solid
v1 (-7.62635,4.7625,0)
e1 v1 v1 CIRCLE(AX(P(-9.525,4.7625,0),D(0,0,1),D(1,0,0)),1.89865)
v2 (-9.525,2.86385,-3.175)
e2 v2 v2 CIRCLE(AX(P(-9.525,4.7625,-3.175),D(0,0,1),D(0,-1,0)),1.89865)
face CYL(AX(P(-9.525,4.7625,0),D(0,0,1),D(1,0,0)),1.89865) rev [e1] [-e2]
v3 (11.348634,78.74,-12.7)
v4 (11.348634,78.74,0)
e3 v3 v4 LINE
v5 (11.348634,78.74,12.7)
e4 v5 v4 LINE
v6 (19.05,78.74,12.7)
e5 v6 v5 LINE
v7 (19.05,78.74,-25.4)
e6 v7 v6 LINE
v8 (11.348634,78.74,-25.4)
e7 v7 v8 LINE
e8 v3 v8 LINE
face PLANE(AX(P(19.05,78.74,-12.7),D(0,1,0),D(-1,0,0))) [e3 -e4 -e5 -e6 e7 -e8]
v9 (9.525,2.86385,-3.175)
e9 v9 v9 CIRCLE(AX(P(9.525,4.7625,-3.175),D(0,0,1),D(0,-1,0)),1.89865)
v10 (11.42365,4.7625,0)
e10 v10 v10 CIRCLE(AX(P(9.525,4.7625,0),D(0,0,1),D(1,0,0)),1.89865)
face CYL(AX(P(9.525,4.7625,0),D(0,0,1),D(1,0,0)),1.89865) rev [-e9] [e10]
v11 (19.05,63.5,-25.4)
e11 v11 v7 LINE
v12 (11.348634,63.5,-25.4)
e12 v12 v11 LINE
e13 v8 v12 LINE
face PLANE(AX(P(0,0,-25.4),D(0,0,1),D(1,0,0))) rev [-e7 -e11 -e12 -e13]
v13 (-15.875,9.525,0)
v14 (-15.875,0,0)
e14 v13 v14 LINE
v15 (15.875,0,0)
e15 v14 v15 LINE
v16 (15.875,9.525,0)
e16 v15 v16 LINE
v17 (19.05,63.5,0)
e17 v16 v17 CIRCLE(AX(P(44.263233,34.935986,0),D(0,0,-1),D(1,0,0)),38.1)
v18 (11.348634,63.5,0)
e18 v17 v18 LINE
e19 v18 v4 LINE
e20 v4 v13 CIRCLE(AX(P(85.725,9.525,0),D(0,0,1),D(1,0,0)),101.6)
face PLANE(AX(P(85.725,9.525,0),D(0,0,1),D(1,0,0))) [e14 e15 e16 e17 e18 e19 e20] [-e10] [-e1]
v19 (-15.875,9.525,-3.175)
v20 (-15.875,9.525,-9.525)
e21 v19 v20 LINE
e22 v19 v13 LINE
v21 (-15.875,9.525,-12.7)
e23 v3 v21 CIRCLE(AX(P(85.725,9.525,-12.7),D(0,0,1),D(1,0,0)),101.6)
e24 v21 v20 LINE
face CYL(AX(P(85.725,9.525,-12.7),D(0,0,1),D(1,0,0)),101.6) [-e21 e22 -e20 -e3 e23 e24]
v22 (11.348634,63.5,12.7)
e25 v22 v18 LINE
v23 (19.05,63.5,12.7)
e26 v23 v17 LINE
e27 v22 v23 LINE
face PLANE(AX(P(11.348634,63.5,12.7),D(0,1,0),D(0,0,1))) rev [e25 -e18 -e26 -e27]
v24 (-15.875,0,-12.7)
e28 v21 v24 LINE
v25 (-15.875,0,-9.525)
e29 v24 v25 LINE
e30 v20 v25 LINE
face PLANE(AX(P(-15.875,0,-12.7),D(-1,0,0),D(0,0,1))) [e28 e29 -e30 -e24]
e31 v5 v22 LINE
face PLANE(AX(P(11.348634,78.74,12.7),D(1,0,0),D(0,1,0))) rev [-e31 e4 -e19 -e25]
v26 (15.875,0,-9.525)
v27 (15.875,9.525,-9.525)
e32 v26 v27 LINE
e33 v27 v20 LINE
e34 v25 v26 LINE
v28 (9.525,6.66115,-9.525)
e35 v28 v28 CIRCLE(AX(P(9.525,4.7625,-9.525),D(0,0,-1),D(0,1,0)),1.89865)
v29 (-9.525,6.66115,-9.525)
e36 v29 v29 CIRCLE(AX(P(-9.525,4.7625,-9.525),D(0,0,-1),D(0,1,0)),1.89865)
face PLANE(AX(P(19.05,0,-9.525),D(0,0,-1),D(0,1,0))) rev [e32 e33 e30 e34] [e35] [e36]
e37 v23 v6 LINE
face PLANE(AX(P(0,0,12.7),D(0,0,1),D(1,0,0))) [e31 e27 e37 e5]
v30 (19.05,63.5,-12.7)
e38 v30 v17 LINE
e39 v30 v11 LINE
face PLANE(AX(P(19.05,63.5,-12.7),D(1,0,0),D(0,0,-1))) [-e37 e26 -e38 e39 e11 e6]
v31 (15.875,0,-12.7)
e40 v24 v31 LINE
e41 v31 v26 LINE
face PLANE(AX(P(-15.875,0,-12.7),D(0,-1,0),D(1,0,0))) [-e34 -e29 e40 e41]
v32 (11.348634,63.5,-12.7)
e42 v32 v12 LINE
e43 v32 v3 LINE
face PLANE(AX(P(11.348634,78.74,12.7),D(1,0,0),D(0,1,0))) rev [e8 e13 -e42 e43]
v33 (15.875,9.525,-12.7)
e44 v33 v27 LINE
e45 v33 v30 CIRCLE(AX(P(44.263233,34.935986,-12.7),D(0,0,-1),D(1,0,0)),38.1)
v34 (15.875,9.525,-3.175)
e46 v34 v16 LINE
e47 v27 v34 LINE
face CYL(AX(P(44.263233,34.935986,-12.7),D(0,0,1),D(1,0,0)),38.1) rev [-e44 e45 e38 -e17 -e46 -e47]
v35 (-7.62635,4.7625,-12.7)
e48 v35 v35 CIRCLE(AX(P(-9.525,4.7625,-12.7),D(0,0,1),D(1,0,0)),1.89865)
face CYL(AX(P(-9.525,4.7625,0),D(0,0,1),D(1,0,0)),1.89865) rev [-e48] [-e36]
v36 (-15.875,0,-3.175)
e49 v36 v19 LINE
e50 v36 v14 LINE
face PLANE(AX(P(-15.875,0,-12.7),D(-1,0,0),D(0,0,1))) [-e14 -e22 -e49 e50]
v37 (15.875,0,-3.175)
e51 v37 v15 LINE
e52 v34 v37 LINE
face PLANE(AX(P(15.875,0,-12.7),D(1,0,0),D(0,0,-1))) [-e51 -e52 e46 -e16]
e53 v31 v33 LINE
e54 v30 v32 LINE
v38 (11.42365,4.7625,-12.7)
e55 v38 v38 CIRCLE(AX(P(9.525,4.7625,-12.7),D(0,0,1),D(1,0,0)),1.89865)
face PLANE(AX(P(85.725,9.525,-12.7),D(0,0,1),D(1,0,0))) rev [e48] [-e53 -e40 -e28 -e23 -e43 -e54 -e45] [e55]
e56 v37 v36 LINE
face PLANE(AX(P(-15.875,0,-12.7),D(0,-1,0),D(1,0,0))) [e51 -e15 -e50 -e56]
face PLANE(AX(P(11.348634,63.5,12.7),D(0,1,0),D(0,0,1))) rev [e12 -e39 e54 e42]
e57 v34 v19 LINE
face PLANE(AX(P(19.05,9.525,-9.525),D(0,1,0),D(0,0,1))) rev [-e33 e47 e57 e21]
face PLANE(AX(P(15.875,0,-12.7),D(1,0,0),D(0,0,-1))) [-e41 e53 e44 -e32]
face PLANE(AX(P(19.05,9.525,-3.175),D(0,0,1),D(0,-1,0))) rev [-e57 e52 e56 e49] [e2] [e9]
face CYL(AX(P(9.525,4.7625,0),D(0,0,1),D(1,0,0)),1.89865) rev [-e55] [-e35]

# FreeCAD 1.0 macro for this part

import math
import FreeCAD as App
import Part
import Sketcher
Q = App.Units.Quantity


def add_polygon(sketch, points):
    """Adds a closed chain of lines whose ends are joined by coincident constraints."""
    first, n = sketch.GeometryCount, len(points)
    for a, b in zip(points, points[1:] + points[:1]):
        sketch.addGeometry(Part.LineSegment(App.Vector(*a, 0), App.Vector(*b, 0)), False)
    for i in range(n):
        sketch.addConstraint(Sketcher.Constraint("Coincident", first + i, 2, first + (i + 1) % n, 1))

doc = App.newDocument("Part")
params = doc.addObject("Spreadsheet::Sheet", "Params")
for row, (alias, value) in enumerate([
    ("sketch1_radius", "4 in"),
    ("sketch1_radius2", "1.5 in"),
    ("sketch1_height", "0.6 in"),
    ("sketch1_width", "1.25 in"),
    ("sketch1_height2", "0.375 in"),
    ("pad1_length", "0.5 in"),
    ("sketch2_height", "0.25 in"),
    ("sketch2_width", "0.375 in"),
    ("hole_diameter", "0.1495 in"),
    ("sketch4_height", "0.6 in"),
    ("pad2_length", "1.5 in"),
], start=1):
    params.set(f"A{row}", alias)
    params.set(f"B{row}", "=" + value)
    params.setAlias(f"B{row}", alias)

body = doc.addObject("PartDesign::Body", "Body")

sketch1 = body.newObject("Sketcher::SketchObject", "Sketch")
sketch1.AttachmentSupport = (doc.getObject("XY_Plane"), [""])
sketch1.MapMode = "FlatFace"
sketch1.addGeometry([
    Part.LineSegment(App.Vector(-16, 0, 0), App.Vector(16, 0, 0)),
    Part.LineSegment(App.Vector(16, 0, 0), App.Vector(16, 10, 0)),
    Part.ArcOfCircle(Part.Circle(App.Vector(44, 35, 0), App.Vector(0, 0, 1), 38), math.radians(131), math.radians(222)),
    Part.LineSegment(App.Vector(19, 64, 0), App.Vector(19, 79, 0)),
    Part.LineSegment(App.Vector(19, 79, 0), App.Vector(11, 79, 0)),
    Part.ArcOfCircle(Part.Circle(App.Vector(86, 10, 0), App.Vector(0, 0, 1), 102), math.radians(137), math.radians(180)),
    Part.LineSegment(App.Vector(-16, 10, 0), App.Vector(-16, 0, 0)),
], False)
sketch1.addConstraint([
    Sketcher.Constraint("Coincident", 0, 2, 1, 1),
    Sketcher.Constraint("Coincident", 1, 2, 2, 2),
    Sketcher.Constraint("Coincident", 2, 1, 3, 1),
    Sketcher.Constraint("Coincident", 3, 2, 4, 1),
    Sketcher.Constraint("Coincident", 4, 2, 5, 1),
    Sketcher.Constraint("Tangent", 5, 2, 6, 1),
    Sketcher.Constraint("Coincident", 6, 2, 0, 1),
    Sketcher.Constraint("Horizontal", 0),
    Sketcher.Constraint("Vertical", 1),
    Sketcher.Constraint("Vertical", 3),
    Sketcher.Constraint("Horizontal", 4),
    Sketcher.Constraint("Vertical", 6),
    Sketcher.Constraint("Symmetric", 0, 2, 6, 2, -1, 1),
    Sketcher.Constraint("Horizontal", 5, 3, 1, 2),
    Sketcher.Constraint("Radius", 5, Q("4 in")),
    Sketcher.Constraint("Radius", 2, Q("1.5 in")),
    Sketcher.Constraint("DistanceY", 3, 1, 3, 2, Q("0.6 in")),
    Sketcher.Constraint("DistanceX", 0, 1, 0, 2, Q("1.25 in")),
    Sketcher.Constraint("DistanceY", -1, 1, 2, 1, Q("2.5 in")),
    Sketcher.Constraint("DistanceY", 1, 1, 1, 2, Q("0.375 in")),
    Sketcher.Constraint("DistanceX", -1, 1, 2, 1, Q("0.75 in")),
])
sketch1.setExpression("Constraints[14]", "Params.sketch1_radius")
sketch1.setExpression("Constraints[15]", "Params.sketch1_radius2")
sketch1.setExpression("Constraints[16]", "Params.sketch1_height")
sketch1.setExpression("Constraints[17]", "Params.sketch1_width")
sketch1.setExpression("Constraints[19]", "Params.sketch1_height2")
pad1 = body.newObject("PartDesign::Pad", "Pad")
pad1.Profile = sketch1
pad1.setExpression("Length", "Params.pad1_length")
pad1.Reversed = True

sketch2 = body.newObject("Sketcher::SketchObject", "Sketch001")
sketch2.AttachmentSupport = (doc.getObject("YZ_Plane"), [""])
sketch2.MapMode = "FlatFace"
sketch2.AttachmentOffset = App.Placement(App.Vector(0, 0, -0.625 * 25.4), App.Rotation())
add_polygon(sketch2, [(10, -10), (0, -10), (0, -3), (10, -3)])
sketch2.addConstraint([
    Sketcher.Constraint("Horizontal", 0),
    Sketcher.Constraint("Vertical", 1),
    Sketcher.Constraint("Horizontal", 2),
    Sketcher.Constraint("Vertical", 3),
    Sketcher.Constraint("PointOnObject", 0, 2, -2),
    Sketcher.Constraint("DistanceY", 1, 1, 1, 2, Q("0.25 in")),
    Sketcher.Constraint("DistanceX", 0, 2, 0, 1, Q("0.375 in")),
    Sketcher.Constraint("DistanceY", 0, 2, -1, 1, Q("0.375 in")),
])
sketch2.setExpression("Constraints[9]", "Params.sketch2_height")
sketch2.setExpression("Constraints[10]", "Params.sketch2_width")
pocket1 = body.newObject("PartDesign::Pocket", "Pocket")
pocket1.Profile = sketch2
pocket1.Type = "ThroughAll"
pocket1.Reversed = True

sketch3 = body.newObject("Sketcher::SketchObject", "Sketch002")
sketch3.AttachmentSupport = (doc.getObject("XY_Plane"), [""])
sketch3.MapMode = "FlatFace"
sketch3.addGeometry([
    Part.Circle(App.Vector(9.5, 4.8, 0), App.Vector(0, 0, 1), 1.9),
    Part.Circle(App.Vector(-9.5, 4.8, 0), App.Vector(0, 0, 1), 1.9),
], False)
sketch3.addConstraint([
    Sketcher.Constraint("Equal", 0, 1),
    Sketcher.Constraint("Symmetric", 0, 3, 1, 3, -2),
    Sketcher.Constraint("Diameter", 0, Q("0.1495 in")),
    Sketcher.Constraint("DistanceX", 1, 3, 0, 3, Q("0.75 in")),
    Sketcher.Constraint("DistanceY", -1, 1, 0, 3, Q("0.1875 in")),
])
doc.recompute()
hole = body.newObject("PartDesign::Hole", "Hole")
hole.Profile = sketch3
hole.ThreadType = "None"
hole.setExpression("Diameter", "Params.hole_diameter")
hole.DepthType = "ThroughAll"

sketch4 = body.newObject("Sketcher::SketchObject", "Sketch003")
sketch4.AttachmentSupport = (doc.getObject("XY_Plane"), [""])
sketch4.MapMode = "FlatFace"
sketch4.AttachmentOffset = App.Placement(App.Vector(0, 0, -0.25 * 25.4), App.Rotation())
add_polygon(sketch4, [(11, 79), (11, 64), (19, 64), (19, 79)])
sketch4.addConstraint([
    Sketcher.Constraint("Vertical", 0),
    Sketcher.Constraint("Horizontal", 1),
    Sketcher.Constraint("Vertical", 2),
    Sketcher.Constraint("Horizontal", 3),
    Sketcher.Constraint("DistanceY", 0, 2, 0, 1, Q("0.6 in")),
    Sketcher.Constraint("DistanceY", -1, 1, 0, 2, Q("2.5 in")),
    Sketcher.Constraint("DistanceX", -1, 1, 1, 2, Q("0.75 in")),
    Sketcher.Constraint("DistanceX", 1, 1, 1, 2, 7.701366),
])
sketch4.setExpression("Constraints[8]", "Params.sketch4_height")
pad2 = body.newObject("PartDesign::Pad", "Pad001")
pad2.Profile = sketch4
pad2.setExpression("Length", "Params.pad2_length")
pad2.Midplane = True

doc.recompute()
